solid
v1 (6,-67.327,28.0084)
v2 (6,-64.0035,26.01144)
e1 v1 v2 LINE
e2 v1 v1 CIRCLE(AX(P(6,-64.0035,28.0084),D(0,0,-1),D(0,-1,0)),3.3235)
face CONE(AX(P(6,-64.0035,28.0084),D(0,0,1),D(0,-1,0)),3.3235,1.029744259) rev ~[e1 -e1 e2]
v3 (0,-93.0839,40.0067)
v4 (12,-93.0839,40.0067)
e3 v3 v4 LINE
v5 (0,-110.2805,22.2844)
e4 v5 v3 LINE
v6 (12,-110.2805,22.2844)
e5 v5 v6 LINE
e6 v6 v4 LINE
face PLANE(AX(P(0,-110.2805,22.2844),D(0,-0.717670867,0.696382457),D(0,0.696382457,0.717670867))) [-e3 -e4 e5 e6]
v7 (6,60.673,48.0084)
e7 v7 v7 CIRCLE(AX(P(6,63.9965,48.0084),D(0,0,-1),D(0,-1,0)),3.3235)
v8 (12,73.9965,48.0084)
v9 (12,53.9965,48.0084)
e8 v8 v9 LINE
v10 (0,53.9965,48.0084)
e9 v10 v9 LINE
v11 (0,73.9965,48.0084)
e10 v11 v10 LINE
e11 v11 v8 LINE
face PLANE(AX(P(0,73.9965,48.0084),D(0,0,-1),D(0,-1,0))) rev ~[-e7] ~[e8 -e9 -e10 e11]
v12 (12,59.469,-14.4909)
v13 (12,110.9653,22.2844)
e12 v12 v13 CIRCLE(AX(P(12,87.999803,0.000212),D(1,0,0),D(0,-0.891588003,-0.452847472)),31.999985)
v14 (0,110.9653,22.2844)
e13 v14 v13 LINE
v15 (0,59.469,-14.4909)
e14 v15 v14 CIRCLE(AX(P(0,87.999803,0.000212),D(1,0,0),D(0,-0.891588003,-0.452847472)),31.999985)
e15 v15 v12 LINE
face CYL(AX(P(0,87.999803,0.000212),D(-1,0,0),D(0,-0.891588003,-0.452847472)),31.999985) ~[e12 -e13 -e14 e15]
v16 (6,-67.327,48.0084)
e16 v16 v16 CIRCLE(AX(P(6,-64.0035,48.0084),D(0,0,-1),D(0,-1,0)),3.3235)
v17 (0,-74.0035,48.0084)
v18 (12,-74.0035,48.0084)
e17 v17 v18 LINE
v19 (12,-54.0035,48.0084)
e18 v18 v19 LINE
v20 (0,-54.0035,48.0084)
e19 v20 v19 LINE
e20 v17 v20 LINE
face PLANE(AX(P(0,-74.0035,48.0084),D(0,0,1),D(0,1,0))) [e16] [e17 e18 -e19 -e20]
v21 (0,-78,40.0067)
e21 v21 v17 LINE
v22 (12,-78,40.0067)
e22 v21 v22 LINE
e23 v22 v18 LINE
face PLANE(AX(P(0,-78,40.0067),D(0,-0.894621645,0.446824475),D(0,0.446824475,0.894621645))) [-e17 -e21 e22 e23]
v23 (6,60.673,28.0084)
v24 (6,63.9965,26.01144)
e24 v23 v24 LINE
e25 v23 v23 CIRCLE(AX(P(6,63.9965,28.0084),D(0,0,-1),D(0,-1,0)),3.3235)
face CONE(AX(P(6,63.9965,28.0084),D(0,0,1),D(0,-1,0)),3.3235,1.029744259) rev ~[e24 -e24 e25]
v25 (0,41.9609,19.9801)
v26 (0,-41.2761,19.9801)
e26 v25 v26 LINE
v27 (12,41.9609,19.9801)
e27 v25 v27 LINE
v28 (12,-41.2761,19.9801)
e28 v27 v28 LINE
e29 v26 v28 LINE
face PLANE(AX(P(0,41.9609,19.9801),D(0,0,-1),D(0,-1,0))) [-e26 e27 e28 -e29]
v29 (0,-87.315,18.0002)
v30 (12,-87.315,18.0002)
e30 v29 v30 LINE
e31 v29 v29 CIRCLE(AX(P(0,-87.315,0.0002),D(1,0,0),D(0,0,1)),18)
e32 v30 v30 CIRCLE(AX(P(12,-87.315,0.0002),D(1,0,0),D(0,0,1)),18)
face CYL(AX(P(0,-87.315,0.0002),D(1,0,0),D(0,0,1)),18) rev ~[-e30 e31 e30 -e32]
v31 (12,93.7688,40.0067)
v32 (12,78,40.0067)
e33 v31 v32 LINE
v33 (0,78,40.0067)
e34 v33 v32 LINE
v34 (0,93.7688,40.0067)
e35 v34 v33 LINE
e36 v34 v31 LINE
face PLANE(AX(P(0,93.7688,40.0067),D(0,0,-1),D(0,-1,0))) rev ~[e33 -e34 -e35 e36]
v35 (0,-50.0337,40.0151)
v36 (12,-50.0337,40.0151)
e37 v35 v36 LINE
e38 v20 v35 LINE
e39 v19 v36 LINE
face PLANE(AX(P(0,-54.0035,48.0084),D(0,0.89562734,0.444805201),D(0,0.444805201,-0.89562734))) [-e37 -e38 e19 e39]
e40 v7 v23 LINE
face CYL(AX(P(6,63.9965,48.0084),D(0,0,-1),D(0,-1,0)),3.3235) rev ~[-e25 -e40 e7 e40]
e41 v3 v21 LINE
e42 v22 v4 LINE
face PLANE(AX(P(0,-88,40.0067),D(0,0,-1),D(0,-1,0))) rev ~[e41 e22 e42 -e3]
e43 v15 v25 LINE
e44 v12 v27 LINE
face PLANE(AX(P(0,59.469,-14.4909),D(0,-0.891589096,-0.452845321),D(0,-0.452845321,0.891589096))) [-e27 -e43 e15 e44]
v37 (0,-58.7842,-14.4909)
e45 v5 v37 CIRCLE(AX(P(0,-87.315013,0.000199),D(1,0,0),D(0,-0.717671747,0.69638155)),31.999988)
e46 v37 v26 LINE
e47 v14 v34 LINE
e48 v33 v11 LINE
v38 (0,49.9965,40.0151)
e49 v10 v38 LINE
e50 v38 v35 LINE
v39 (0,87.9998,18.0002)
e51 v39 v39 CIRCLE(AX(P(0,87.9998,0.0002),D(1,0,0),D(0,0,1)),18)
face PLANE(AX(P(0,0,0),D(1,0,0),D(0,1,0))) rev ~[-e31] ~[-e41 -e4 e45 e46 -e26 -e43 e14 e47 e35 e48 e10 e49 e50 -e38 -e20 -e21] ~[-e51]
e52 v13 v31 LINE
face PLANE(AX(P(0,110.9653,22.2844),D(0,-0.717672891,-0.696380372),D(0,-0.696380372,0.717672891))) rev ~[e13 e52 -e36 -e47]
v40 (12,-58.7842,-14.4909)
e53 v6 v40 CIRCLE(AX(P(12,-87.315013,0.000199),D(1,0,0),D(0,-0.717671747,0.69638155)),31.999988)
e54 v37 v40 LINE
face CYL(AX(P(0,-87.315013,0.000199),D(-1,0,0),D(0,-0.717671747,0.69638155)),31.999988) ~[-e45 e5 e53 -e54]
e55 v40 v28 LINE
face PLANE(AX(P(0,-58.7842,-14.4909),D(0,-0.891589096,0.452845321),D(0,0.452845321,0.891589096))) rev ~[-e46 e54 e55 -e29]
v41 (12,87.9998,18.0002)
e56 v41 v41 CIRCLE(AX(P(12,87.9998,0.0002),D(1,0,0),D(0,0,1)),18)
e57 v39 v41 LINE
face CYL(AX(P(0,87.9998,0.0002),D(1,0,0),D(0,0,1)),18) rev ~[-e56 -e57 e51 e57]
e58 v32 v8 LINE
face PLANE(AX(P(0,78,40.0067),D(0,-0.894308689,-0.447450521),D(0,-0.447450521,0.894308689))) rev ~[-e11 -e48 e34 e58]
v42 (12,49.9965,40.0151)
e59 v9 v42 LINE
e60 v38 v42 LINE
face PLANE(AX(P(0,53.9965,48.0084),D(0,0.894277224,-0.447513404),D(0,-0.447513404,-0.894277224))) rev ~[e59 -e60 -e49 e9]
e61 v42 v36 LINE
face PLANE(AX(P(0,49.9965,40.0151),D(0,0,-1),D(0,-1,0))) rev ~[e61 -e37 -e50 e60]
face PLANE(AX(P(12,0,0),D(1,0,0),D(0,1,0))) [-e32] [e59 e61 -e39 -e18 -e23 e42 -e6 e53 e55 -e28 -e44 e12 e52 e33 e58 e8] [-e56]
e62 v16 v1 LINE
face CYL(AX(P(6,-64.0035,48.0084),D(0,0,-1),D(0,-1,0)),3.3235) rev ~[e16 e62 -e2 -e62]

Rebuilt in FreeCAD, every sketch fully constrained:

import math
import FreeCAD as App
import Part
import Sketcher

V = App.Vector
Q = App.Units.Quantity

doc = App.newDocument("Part")
params = doc.addObject("Spreadsheet::Sheet", "Params")
for row, (alias, value) in enumerate([
    ("sketch1_radius", "32 mm"),
    ("sketch1_width", "20 mm"),
    ("pad1_length", "12 mm"),
    ("sketch2_diameter", "36 mm"),
    ("hole_diameter", "36 mm"),
    ("hole2_diameter", "6.647 mm"),
    ("hole2_depth", "20 mm"),
], start=1):
    params.set(f"A{row}", alias)
    params.set(f"B{row}", "=" + value)
    params.setAlias(f"B{row}", alias)

body = doc.addObject("PartDesign::Body", "Body")

# Sketch on YZ plane
sketch1 = body.newObject("Sketcher::SketchObject", "Sketch")
sketch1.AttachmentSupport = (doc.getObject("YZ_Plane"), [""])
sketch1.MapMode = "FlatFace"
sketch1.addGeometry(Part.LineSegment(V(42, 20, 0), V(59, -14, 0)), False)
sketch1.addGeometry(Part.ArcOfCircle(Part.Circle(V(88, 0, 0), V(0, 0, 1), 32), math.radians(-153), math.radians(44)), False)
sketch1.addGeometry(Part.LineSegment(V(111, 22, 0), V(94, 40, 0)), False)
sketch1.addGeometry(Part.LineSegment(V(94, 40, 0), V(78, 40, 0)), False)
sketch1.addGeometry(Part.LineSegment(V(78, 40, 0), V(74, 48, 0)), False)
sketch1.addGeometry(Part.LineSegment(V(74, 48, 0), V(54, 48, 0)), False)
sketch1.addGeometry(Part.LineSegment(V(54, 48, 0), V(50, 40, 0)), False)
sketch1.addGeometry(Part.LineSegment(V(50, 40, 0), V(-50, 40, 0)), False)
sketch1.addGeometry(Part.LineSegment(V(-50, 40, 0), V(-54, 48, 0)), False)
sketch1.addGeometry(Part.LineSegment(V(-54, 48, 0), V(-74, 48, 0)), False)
sketch1.addGeometry(Part.LineSegment(V(-74, 48, 0), V(-78, 40, 0)), False)
sketch1.addGeometry(Part.LineSegment(V(-78, 40, 0), V(-93, 40, 0)), False)
sketch1.addGeometry(Part.LineSegment(V(-93, 40, 0), V(-110, 22, 0)), False)
sketch1.addGeometry(Part.ArcOfCircle(Part.Circle(V(-87, 0, 0), V(0, 0, 1), 32), math.radians(136), math.radians(333)), False)
sketch1.addGeometry(Part.LineSegment(V(-59, -14, 0), V(-41, 20, 0)), False)
sketch1.addGeometry(Part.LineSegment(V(-41, 20, 0), V(42, 20, 0)), False)
sketch1.addConstraint(Sketcher.Constraint("Tangent", 0, 2, 1, 1))
sketch1.addConstraint(Sketcher.Constraint("Tangent", 1, 2, 2, 1))
sketch1.addConstraint(Sketcher.Constraint("Coincident", 2, 2, 3, 1))
sketch1.addConstraint(Sketcher.Constraint("Coincident", 3, 2, 4, 1))
sketch1.addConstraint(Sketcher.Constraint("Coincident", 4, 2, 5, 1))
sketch1.addConstraint(Sketcher.Constraint("Coincident", 5, 2, 6, 1))
sketch1.addConstraint(Sketcher.Constraint("Coincident", 6, 2, 7, 1))
sketch1.addConstraint(Sketcher.Constraint("Coincident", 7, 2, 8, 1))
sketch1.addConstraint(Sketcher.Constraint("Coincident", 8, 2, 9, 1))
sketch1.addConstraint(Sketcher.Constraint("Coincident", 9, 2, 10, 1))
sketch1.addConstraint(Sketcher.Constraint("Coincident", 10, 2, 11, 1))
sketch1.addConstraint(Sketcher.Constraint("Coincident", 11, 2, 12, 1))
sketch1.addConstraint(Sketcher.Constraint("Tangent", 12, 2, 13, 1))
sketch1.addConstraint(Sketcher.Constraint("Tangent", 13, 2, 14, 1))
sketch1.addConstraint(Sketcher.Constraint("Coincident", 14, 2, 15, 1))
sketch1.addConstraint(Sketcher.Constraint("Coincident", 15, 2, 0, 1))
sketch1.addConstraint(Sketcher.Constraint("Horizontal", 3))
sketch1.addConstraint(Sketcher.Constraint("Horizontal", 5))
sketch1.addConstraint(Sketcher.Constraint("Horizontal", 7))
sketch1.addConstraint(Sketcher.Constraint("Horizontal", 9))
sketch1.addConstraint(Sketcher.Constraint("Horizontal", 11))
sketch1.addConstraint(Sketcher.Constraint("Horizontal", 15))
sketch1.addConstraint(Sketcher.Constraint("Equal", 1, 13))
sketch1.addConstraint(Sketcher.Constraint("Symmetric", 3, 2, 10, 2, -2))
sketch1.addConstraint(Sketcher.Constraint("Horizontal", 1, 3, 13, 3))
sketch1.addConstraint(Sketcher.Constraint("Horizontal", 5, 2, 8, 2))
sketch1.addConstraint(Sketcher.Constraint("Horizontal", 1, 2, 12, 2))
sketch1.addConstraint(Sketcher.Constraint("Horizontal", 0, 2, 13, 2))
sketch1.addConstraint(Sketcher.Constraint("Equal", 5, 9))
sketch1.addConstraint(Sketcher.Constraint("Radius", 1, Q("32 mm")))
sketch1.addConstraint(Sketcher.Constraint("DistanceX", 5, 2, 5, 1, Q("20 mm")))
sketch1.addConstraint(Sketcher.Constraint("DistanceX", -1, 1, 3, 2, Q("78 mm")))
sketch1.addConstraint(Sketcher.Constraint("DistanceX", 6, 2, 5, 2, Q("4 mm")))
sketch1.addConstraint(Sketcher.Constraint("DistanceX", 8, 2, 6, 2, Q("104 mm")))
sketch1.addConstraint(Sketcher.Constraint("Angle", 4, Q("116.5802 deg")))
sketch1.addConstraint(Sketcher.Constraint("Angle", 8, Q("116.4109 deg")))
sketch1.addConstraint(Sketcher.Constraint("Angle", 10, Q("-116.5401 deg")))
sketch1.addConstraint(Sketcher.Constraint("DistanceX", 11, 2, 11, 1, Q("15.084 mm")))
sketch1.addConstraint(Sketcher.Constraint("DistanceX", 15, 1, 15, 2, Q("83.237 mm")))
sketch1.addConstraint(Sketcher.Constraint("DistanceY", -1, 1, 14, 2, Q("19.98 mm")))
sketch1.addConstraint(Sketcher.Constraint("Distance", 2, Q("24.694 mm")))
sketch1.addConstraint(Sketcher.Constraint("DistanceX", 3, 2, 3, 1, Q("15.7688 mm")))
sketch1.addConstraint(Sketcher.Constraint("DistanceX", 7, 2, 7, 1, Q("100.0302 mm")))
sketch1.addConstraint(Sketcher.Constraint("DistanceX", 13, 3, -1, 1, Q("87.315 mm")))
sketch1.addConstraint(Sketcher.Constraint("DistanceX", -1, 1, 0, 2, Q("59.469 mm")))
sketch1.setExpression("Constraints[29]", "Params.sketch1_radius")
sketch1.setExpression("Constraints[30]", "Params.sketch1_width")
pad1 = body.newObject("PartDesign::Pad", "Pad")
pad1.Profile = sketch1
pad1.setExpression("Length", "Params.pad1_length")

# Sketch on YZ plane
sketch2 = body.newObject("Sketcher::SketchObject", "Sketch001")
sketch2.AttachmentSupport = (doc.getObject("YZ_Plane"), [""])
sketch2.MapMode = "FlatFace"
sketch2.addGeometry(Part.Circle(V(-87, 0, 0), V(0, 0, 1), 18), False)
sketch2.addGeometry(Part.Circle(V(88, 0, 0), V(0, 0, 1), 18), False)
sketch2.addConstraint(Sketcher.Constraint("Equal", 0, 1))
sketch2.addConstraint(Sketcher.Constraint("Horizontal", 0, 3, 1, 3))
sketch2.addConstraint(Sketcher.Constraint("Diameter", 0, Q("36 mm")))
sketch2.addConstraint(Sketcher.Constraint("DistanceX", 0, 3, -1, 1, Q("87.315 mm")))
sketch2.addConstraint(Sketcher.Constraint("DistanceY", -1, 1, 0, 3, Q("0.0002 mm")))
sketch2.addConstraint(Sketcher.Constraint("DistanceX", -1, 1, 1, 3, Q("87.9998 mm")))
sketch2.setExpression("Constraints[2]", "Params.sketch2_diameter")
doc.recompute()
hole = body.newObject("PartDesign::Hole", "Hole")
hole.Profile = sketch2
hole.ThreadType = "None"
hole.setExpression("Diameter", "Params.hole_diameter")
hole.DepthType = "ThroughAll"
hole.Reversed = True

# Sketch on XY plane
sketch3 = body.newObject("Sketcher::SketchObject", "Sketch002")
sketch3.AttachmentSupport = (doc.getObject("XY_Plane"), [""])
sketch3.MapMode = "FlatFace"
sketch3.AttachmentOffset = App.Placement(V(0, 0, 48.0084), App.Rotation())
sketch3.addGeometry(Part.Circle(V(6, -64, 0), V(0, 0, 1), 3.3), False)
sketch3.addGeometry(Part.Circle(V(6, 64, 0), V(0, 0, 1), 3.3), False)
sketch3.addConstraint(Sketcher.Constraint("Equal", 0, 1))
sketch3.addConstraint(Sketcher.Constraint("Vertical", 0, 3, 1, 3))
sketch3.addConstraint(Sketcher.Constraint("Diameter", 0, Q("6.647 mm")))
sketch3.addConstraint(Sketcher.Constraint("DistanceX", -1, 1, 0, 3, Q("6 mm")))
sketch3.addConstraint(Sketcher.Constraint("DistanceY", 0, 3, 1, 3, Q("128 mm")))
sketch3.addConstraint(Sketcher.Constraint("DistanceY", 0, 3, -1, 1, Q("64.0035 mm")))
doc.recompute()
hole2 = body.newObject("PartDesign::Hole", "Hole001")
hole2.Profile = sketch3
hole2.ThreadType = "None"
hole2.setExpression("Diameter", "Params.hole2_diameter")
hole2.DepthType = "Dimension"
hole2.setExpression("Depth", "Params.hole2_depth")
hole2.DrillPoint = "Angled"
hole2.DrillPointAngle = 118

doc.recompute()
